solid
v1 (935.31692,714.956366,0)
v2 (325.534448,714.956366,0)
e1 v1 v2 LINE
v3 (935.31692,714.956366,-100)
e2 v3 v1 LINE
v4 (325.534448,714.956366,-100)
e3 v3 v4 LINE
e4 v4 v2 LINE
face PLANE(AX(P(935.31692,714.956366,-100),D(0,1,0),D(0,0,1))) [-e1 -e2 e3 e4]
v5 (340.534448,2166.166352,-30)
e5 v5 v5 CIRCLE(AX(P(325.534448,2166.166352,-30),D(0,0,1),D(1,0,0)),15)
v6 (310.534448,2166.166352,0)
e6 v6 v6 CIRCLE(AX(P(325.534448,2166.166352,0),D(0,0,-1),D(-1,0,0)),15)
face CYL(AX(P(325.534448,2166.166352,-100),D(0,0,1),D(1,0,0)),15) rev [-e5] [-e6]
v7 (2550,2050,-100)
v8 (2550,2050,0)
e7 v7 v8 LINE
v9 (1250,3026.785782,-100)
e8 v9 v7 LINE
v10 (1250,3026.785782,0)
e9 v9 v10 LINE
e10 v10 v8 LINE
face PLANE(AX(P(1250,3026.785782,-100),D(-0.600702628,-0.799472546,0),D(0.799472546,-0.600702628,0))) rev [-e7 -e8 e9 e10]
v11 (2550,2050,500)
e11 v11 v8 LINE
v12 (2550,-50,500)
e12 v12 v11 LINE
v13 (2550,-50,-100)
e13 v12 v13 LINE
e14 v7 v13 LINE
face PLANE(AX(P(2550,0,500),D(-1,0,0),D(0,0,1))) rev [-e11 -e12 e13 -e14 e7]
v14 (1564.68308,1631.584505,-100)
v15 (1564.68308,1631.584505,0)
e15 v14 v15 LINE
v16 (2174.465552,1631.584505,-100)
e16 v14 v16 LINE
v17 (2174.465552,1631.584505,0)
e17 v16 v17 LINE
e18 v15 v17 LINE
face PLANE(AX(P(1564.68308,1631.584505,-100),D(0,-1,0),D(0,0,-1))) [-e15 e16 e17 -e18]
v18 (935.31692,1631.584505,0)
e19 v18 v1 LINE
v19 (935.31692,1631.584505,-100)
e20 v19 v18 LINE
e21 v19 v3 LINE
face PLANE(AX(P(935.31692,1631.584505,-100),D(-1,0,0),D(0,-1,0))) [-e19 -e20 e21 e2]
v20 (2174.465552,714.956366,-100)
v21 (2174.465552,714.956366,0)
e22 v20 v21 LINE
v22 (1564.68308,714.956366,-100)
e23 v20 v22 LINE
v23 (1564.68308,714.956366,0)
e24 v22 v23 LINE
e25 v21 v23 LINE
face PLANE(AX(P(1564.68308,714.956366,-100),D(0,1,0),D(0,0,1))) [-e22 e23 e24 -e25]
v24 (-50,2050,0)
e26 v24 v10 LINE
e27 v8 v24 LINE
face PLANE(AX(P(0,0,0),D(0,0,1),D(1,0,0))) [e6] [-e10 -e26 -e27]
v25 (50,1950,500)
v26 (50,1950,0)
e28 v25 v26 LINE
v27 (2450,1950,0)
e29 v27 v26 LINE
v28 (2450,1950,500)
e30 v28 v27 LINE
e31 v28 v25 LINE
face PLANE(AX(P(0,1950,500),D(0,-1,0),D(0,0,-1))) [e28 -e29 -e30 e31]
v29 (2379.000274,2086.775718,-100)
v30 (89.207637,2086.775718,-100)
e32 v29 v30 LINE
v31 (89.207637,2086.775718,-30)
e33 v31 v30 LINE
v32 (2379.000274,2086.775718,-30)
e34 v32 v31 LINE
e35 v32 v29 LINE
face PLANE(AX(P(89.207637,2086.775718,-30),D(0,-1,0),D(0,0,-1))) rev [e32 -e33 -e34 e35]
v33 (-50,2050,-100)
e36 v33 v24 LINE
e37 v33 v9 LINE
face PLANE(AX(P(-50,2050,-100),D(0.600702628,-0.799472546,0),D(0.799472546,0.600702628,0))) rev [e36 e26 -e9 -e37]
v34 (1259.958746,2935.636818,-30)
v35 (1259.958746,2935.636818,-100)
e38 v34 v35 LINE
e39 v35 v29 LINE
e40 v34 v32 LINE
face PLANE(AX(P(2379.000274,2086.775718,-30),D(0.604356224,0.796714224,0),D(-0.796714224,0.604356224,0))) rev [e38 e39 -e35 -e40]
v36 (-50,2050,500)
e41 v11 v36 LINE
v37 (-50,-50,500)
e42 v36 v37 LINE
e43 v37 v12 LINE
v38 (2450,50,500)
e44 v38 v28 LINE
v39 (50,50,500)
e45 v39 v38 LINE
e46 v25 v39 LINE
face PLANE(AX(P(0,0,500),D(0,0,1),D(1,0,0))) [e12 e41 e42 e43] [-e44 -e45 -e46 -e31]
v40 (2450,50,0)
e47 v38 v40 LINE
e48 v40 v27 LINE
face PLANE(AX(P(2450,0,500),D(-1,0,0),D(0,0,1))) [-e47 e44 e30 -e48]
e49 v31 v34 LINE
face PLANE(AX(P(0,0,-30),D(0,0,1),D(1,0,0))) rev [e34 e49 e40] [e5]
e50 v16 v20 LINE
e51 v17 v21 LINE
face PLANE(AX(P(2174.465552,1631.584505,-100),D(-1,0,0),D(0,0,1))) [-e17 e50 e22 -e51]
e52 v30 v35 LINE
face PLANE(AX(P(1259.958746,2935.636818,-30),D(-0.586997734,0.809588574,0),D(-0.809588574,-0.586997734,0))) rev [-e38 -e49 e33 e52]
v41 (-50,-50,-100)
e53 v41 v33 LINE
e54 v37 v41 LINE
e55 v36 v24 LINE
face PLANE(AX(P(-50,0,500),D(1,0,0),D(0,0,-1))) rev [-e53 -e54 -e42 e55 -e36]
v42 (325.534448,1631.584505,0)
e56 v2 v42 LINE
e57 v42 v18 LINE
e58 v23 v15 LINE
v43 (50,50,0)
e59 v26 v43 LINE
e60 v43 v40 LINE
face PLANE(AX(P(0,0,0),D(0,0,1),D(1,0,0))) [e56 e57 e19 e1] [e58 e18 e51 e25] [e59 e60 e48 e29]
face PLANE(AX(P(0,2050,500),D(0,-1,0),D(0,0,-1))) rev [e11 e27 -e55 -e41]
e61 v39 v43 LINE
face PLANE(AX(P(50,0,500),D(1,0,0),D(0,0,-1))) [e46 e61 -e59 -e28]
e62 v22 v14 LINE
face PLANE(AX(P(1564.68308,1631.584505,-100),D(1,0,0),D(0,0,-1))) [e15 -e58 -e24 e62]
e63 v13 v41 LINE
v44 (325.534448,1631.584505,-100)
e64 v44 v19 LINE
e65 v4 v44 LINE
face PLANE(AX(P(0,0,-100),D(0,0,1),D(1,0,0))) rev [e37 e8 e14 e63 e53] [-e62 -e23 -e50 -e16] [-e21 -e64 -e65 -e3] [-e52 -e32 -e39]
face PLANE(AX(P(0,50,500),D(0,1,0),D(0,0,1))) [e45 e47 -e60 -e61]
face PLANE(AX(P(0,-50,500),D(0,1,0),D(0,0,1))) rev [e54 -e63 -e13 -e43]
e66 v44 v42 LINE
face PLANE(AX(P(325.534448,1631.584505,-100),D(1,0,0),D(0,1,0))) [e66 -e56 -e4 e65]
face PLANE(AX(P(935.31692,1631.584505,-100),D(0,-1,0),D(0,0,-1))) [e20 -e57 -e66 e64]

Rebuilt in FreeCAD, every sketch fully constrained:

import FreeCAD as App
import Part
import Sketcher
Q = App.Units.Quantity


def add_polygon(sketch, points):
    """Adds a closed chain of lines whose ends are joined by coincident constraints."""
    first, n = sketch.GeometryCount, len(points)
    for a, b in zip(points, points[1:] + points[:1]):
        sketch.addGeometry(Part.LineSegment(App.Vector(*a, 0), App.Vector(*b, 0)), False)
    for i in range(n):
        sketch.addConstraint(Sketcher.Constraint("Coincident", first + i, 2, first + (i + 1) % n, 1))

doc = App.newDocument("Part")
body = doc.addObject("PartDesign::Body", "Body")

# Sketch on XY plane
sketch1 = body.newObject("Sketcher::SketchObject", "Sketch")
sketch1.AttachmentSupport = (doc.getObject("XY_Plane"), [""])
sketch1.MapMode = "FlatFace"
add_polygon(sketch1, [(-50, 2050), (-50, -50), (2550, -50), (2550, 2050)])  # lines 0-3
add_polygon(sketch1, [(2450, 50), (50, 50), (50, 1950), (2450, 1950)])  # lines 4-7
sketch1.addConstraint([
    Sketcher.Constraint("Vertical", 0),
    Sketcher.Constraint("Horizontal", 1),
    Sketcher.Constraint("Vertical", 2),
    Sketcher.Constraint("Horizontal", 3),
    Sketcher.Constraint("Horizontal", 4),
    Sketcher.Constraint("Vertical", 5),
    Sketcher.Constraint("Horizontal", 6),
    Sketcher.Constraint("Vertical", 7),
    Sketcher.Constraint("Symmetric", 0, 2, 4, 2, -1, 1),
    Sketcher.Constraint("DistanceX", 1, 1, 1, 2, Q("2600 mm")),
    Sketcher.Constraint("DistanceX", 4, 2, 4, 1, Q("2400 mm")),
    Sketcher.Constraint("DistanceY", 0, 2, 0, 1, Q("2100 mm")),
    Sketcher.Constraint("DistanceY", 5, 1, 5, 2, Q("1900 mm")),
    Sketcher.Constraint("DistanceX", 0, 2, -1, 1, Q("50 mm")),
    Sketcher.Constraint("DistanceY", 0, 2, -1, 1, Q("50 mm")),
])
pad1 = body.newObject("PartDesign::Pad", "Pad")
pad1.Profile = sketch1
pad1.Length = 500

# Sketch on XY plane
sketch2 = body.newObject("Sketcher::SketchObject", "Sketch001")
sketch2.AttachmentSupport = (doc.getObject("XY_Plane"), [""])
sketch2.MapMode = "FlatFace"
add_polygon(sketch2, [(2550, 2050), (2550, -50), (-50, -50), (-50, 2050), (1250, 3026.785782)])  # lines 0-4
add_polygon(sketch2, [(1564.68308, 714.956366), (2174.465552, 714.956366), (2174.465552, 1631.584505), (1564.68308, 1631.584505)])  # lines 5-8
add_polygon(sketch2, [(325.534448, 714.956366), (935.31692, 714.956366), (935.31692, 1631.584505), (325.534448, 1631.584505)])  # lines 9-12
sketch2.addGeometry(Part.Circle(App.Vector(325.534448, 2166.166352, 0), App.Vector(0, 0, 1), 15), False)  # 13
sketch2.addConstraint([
    Sketcher.Constraint("Vertical", 0),
    Sketcher.Constraint("Horizontal", 1),
    Sketcher.Constraint("Vertical", 2),
    Sketcher.Constraint("Horizontal", 5),
    Sketcher.Constraint("Vertical", 6),
    Sketcher.Constraint("Horizontal", 7),
    Sketcher.Constraint("Vertical", 8),
    Sketcher.Constraint("Horizontal", 9),
    Sketcher.Constraint("Vertical", 10),
    Sketcher.Constraint("Horizontal", 11),
    Sketcher.Constraint("Vertical", 12),
    Sketcher.Constraint("Horizontal", 2, 2, 4, 2),
    Sketcher.Constraint("Horizontal", 8, 2, 9, 2),
    Sketcher.Constraint("Horizontal", 7, 2, 10, 2),
    Sketcher.Constraint("Vertical", 13, 3, 11, 2),
    Sketcher.Constraint("Equal", 7, 9),
    Sketcher.Constraint("Equal", 3, 4),
    Sketcher.Constraint("Diameter", 13, Q("30 mm")),
    Sketcher.Constraint("DistanceX", 1, 2, 1, 1, Q("2600 mm")),
    Sketcher.Constraint("DistanceY", 0, 2, 0, 1, Q("2100 mm")),
    Sketcher.Constraint("DistanceX", -1, 1, 0, 2, Q("2550 mm")),
    Sketcher.Constraint("DistanceY", 0, 2, -1, 1, Q("50 mm")),
    Sketcher.Constraint("DistanceY", 6, 1, 6, 2, Q("916.62814 mm")),
    Sketcher.Constraint("DistanceX", 5, 1, 5, 2, Q("609.782472 mm")),
    Sketcher.Constraint("DistanceY", -1, 1, 13, 3, Q("2166.166352 mm")),
    Sketcher.Constraint("DistanceX", -1, 1, 7, 2, Q("1564.68308 mm")),
    Sketcher.Constraint("DistanceX", -1, 1, 9, 2, Q("935.31692 mm")),
    Sketcher.Constraint("DistanceY", 13, 3, 3, 2, Q("860.619431 mm")),
    Sketcher.Constraint("DistanceY", -1, 1, 5, 2, Q("714.956366 mm")),
])
pad2 = body.newObject("PartDesign::Pad", "Pad001")
pad2.Profile = sketch2
pad2.Length = 100
pad2.Reversed = True

# Sketch on XY plane
sketch3 = body.newObject("Sketcher::SketchObject", "Sketch002")
sketch3.AttachmentSupport = (doc.getObject("XY_Plane"), [""])
sketch3.MapMode = "FlatFace"
sketch3.AttachmentOffset = App.Placement(App.Vector(0, 0, -100), App.Rotation())
add_polygon(sketch3, [(1259.958746, 2935.636818), (2379.000274, 2086.775718), (89.207637, 2086.775718)])  # lines 0-2
sketch3.addConstraint([
    Sketcher.Constraint("Horizontal", 1),
    Sketcher.Constraint("DistanceY", 0, 2, 2, 2, Q("848.8611 mm")),
    Sketcher.Constraint("DistanceX", 1, 2, 1, 1, Q("2289.792637 mm")),
    Sketcher.Constraint("DistanceY", -1, 1, 2, 2, Q("2935.636818 mm")),
    Sketcher.Constraint("DistanceX", 2, 2, 0, 2, Q("1119.041528 mm")),
    Sketcher.Constraint("DistanceX", -1, 1, 0, 2, Q("2379.000274 mm")),
])
pocket1 = body.newObject("PartDesign::Pocket", "Pocket")
pocket1.Profile = sketch3
pocket1.Length = 70
pocket1.Reversed = True

doc.recompute()
